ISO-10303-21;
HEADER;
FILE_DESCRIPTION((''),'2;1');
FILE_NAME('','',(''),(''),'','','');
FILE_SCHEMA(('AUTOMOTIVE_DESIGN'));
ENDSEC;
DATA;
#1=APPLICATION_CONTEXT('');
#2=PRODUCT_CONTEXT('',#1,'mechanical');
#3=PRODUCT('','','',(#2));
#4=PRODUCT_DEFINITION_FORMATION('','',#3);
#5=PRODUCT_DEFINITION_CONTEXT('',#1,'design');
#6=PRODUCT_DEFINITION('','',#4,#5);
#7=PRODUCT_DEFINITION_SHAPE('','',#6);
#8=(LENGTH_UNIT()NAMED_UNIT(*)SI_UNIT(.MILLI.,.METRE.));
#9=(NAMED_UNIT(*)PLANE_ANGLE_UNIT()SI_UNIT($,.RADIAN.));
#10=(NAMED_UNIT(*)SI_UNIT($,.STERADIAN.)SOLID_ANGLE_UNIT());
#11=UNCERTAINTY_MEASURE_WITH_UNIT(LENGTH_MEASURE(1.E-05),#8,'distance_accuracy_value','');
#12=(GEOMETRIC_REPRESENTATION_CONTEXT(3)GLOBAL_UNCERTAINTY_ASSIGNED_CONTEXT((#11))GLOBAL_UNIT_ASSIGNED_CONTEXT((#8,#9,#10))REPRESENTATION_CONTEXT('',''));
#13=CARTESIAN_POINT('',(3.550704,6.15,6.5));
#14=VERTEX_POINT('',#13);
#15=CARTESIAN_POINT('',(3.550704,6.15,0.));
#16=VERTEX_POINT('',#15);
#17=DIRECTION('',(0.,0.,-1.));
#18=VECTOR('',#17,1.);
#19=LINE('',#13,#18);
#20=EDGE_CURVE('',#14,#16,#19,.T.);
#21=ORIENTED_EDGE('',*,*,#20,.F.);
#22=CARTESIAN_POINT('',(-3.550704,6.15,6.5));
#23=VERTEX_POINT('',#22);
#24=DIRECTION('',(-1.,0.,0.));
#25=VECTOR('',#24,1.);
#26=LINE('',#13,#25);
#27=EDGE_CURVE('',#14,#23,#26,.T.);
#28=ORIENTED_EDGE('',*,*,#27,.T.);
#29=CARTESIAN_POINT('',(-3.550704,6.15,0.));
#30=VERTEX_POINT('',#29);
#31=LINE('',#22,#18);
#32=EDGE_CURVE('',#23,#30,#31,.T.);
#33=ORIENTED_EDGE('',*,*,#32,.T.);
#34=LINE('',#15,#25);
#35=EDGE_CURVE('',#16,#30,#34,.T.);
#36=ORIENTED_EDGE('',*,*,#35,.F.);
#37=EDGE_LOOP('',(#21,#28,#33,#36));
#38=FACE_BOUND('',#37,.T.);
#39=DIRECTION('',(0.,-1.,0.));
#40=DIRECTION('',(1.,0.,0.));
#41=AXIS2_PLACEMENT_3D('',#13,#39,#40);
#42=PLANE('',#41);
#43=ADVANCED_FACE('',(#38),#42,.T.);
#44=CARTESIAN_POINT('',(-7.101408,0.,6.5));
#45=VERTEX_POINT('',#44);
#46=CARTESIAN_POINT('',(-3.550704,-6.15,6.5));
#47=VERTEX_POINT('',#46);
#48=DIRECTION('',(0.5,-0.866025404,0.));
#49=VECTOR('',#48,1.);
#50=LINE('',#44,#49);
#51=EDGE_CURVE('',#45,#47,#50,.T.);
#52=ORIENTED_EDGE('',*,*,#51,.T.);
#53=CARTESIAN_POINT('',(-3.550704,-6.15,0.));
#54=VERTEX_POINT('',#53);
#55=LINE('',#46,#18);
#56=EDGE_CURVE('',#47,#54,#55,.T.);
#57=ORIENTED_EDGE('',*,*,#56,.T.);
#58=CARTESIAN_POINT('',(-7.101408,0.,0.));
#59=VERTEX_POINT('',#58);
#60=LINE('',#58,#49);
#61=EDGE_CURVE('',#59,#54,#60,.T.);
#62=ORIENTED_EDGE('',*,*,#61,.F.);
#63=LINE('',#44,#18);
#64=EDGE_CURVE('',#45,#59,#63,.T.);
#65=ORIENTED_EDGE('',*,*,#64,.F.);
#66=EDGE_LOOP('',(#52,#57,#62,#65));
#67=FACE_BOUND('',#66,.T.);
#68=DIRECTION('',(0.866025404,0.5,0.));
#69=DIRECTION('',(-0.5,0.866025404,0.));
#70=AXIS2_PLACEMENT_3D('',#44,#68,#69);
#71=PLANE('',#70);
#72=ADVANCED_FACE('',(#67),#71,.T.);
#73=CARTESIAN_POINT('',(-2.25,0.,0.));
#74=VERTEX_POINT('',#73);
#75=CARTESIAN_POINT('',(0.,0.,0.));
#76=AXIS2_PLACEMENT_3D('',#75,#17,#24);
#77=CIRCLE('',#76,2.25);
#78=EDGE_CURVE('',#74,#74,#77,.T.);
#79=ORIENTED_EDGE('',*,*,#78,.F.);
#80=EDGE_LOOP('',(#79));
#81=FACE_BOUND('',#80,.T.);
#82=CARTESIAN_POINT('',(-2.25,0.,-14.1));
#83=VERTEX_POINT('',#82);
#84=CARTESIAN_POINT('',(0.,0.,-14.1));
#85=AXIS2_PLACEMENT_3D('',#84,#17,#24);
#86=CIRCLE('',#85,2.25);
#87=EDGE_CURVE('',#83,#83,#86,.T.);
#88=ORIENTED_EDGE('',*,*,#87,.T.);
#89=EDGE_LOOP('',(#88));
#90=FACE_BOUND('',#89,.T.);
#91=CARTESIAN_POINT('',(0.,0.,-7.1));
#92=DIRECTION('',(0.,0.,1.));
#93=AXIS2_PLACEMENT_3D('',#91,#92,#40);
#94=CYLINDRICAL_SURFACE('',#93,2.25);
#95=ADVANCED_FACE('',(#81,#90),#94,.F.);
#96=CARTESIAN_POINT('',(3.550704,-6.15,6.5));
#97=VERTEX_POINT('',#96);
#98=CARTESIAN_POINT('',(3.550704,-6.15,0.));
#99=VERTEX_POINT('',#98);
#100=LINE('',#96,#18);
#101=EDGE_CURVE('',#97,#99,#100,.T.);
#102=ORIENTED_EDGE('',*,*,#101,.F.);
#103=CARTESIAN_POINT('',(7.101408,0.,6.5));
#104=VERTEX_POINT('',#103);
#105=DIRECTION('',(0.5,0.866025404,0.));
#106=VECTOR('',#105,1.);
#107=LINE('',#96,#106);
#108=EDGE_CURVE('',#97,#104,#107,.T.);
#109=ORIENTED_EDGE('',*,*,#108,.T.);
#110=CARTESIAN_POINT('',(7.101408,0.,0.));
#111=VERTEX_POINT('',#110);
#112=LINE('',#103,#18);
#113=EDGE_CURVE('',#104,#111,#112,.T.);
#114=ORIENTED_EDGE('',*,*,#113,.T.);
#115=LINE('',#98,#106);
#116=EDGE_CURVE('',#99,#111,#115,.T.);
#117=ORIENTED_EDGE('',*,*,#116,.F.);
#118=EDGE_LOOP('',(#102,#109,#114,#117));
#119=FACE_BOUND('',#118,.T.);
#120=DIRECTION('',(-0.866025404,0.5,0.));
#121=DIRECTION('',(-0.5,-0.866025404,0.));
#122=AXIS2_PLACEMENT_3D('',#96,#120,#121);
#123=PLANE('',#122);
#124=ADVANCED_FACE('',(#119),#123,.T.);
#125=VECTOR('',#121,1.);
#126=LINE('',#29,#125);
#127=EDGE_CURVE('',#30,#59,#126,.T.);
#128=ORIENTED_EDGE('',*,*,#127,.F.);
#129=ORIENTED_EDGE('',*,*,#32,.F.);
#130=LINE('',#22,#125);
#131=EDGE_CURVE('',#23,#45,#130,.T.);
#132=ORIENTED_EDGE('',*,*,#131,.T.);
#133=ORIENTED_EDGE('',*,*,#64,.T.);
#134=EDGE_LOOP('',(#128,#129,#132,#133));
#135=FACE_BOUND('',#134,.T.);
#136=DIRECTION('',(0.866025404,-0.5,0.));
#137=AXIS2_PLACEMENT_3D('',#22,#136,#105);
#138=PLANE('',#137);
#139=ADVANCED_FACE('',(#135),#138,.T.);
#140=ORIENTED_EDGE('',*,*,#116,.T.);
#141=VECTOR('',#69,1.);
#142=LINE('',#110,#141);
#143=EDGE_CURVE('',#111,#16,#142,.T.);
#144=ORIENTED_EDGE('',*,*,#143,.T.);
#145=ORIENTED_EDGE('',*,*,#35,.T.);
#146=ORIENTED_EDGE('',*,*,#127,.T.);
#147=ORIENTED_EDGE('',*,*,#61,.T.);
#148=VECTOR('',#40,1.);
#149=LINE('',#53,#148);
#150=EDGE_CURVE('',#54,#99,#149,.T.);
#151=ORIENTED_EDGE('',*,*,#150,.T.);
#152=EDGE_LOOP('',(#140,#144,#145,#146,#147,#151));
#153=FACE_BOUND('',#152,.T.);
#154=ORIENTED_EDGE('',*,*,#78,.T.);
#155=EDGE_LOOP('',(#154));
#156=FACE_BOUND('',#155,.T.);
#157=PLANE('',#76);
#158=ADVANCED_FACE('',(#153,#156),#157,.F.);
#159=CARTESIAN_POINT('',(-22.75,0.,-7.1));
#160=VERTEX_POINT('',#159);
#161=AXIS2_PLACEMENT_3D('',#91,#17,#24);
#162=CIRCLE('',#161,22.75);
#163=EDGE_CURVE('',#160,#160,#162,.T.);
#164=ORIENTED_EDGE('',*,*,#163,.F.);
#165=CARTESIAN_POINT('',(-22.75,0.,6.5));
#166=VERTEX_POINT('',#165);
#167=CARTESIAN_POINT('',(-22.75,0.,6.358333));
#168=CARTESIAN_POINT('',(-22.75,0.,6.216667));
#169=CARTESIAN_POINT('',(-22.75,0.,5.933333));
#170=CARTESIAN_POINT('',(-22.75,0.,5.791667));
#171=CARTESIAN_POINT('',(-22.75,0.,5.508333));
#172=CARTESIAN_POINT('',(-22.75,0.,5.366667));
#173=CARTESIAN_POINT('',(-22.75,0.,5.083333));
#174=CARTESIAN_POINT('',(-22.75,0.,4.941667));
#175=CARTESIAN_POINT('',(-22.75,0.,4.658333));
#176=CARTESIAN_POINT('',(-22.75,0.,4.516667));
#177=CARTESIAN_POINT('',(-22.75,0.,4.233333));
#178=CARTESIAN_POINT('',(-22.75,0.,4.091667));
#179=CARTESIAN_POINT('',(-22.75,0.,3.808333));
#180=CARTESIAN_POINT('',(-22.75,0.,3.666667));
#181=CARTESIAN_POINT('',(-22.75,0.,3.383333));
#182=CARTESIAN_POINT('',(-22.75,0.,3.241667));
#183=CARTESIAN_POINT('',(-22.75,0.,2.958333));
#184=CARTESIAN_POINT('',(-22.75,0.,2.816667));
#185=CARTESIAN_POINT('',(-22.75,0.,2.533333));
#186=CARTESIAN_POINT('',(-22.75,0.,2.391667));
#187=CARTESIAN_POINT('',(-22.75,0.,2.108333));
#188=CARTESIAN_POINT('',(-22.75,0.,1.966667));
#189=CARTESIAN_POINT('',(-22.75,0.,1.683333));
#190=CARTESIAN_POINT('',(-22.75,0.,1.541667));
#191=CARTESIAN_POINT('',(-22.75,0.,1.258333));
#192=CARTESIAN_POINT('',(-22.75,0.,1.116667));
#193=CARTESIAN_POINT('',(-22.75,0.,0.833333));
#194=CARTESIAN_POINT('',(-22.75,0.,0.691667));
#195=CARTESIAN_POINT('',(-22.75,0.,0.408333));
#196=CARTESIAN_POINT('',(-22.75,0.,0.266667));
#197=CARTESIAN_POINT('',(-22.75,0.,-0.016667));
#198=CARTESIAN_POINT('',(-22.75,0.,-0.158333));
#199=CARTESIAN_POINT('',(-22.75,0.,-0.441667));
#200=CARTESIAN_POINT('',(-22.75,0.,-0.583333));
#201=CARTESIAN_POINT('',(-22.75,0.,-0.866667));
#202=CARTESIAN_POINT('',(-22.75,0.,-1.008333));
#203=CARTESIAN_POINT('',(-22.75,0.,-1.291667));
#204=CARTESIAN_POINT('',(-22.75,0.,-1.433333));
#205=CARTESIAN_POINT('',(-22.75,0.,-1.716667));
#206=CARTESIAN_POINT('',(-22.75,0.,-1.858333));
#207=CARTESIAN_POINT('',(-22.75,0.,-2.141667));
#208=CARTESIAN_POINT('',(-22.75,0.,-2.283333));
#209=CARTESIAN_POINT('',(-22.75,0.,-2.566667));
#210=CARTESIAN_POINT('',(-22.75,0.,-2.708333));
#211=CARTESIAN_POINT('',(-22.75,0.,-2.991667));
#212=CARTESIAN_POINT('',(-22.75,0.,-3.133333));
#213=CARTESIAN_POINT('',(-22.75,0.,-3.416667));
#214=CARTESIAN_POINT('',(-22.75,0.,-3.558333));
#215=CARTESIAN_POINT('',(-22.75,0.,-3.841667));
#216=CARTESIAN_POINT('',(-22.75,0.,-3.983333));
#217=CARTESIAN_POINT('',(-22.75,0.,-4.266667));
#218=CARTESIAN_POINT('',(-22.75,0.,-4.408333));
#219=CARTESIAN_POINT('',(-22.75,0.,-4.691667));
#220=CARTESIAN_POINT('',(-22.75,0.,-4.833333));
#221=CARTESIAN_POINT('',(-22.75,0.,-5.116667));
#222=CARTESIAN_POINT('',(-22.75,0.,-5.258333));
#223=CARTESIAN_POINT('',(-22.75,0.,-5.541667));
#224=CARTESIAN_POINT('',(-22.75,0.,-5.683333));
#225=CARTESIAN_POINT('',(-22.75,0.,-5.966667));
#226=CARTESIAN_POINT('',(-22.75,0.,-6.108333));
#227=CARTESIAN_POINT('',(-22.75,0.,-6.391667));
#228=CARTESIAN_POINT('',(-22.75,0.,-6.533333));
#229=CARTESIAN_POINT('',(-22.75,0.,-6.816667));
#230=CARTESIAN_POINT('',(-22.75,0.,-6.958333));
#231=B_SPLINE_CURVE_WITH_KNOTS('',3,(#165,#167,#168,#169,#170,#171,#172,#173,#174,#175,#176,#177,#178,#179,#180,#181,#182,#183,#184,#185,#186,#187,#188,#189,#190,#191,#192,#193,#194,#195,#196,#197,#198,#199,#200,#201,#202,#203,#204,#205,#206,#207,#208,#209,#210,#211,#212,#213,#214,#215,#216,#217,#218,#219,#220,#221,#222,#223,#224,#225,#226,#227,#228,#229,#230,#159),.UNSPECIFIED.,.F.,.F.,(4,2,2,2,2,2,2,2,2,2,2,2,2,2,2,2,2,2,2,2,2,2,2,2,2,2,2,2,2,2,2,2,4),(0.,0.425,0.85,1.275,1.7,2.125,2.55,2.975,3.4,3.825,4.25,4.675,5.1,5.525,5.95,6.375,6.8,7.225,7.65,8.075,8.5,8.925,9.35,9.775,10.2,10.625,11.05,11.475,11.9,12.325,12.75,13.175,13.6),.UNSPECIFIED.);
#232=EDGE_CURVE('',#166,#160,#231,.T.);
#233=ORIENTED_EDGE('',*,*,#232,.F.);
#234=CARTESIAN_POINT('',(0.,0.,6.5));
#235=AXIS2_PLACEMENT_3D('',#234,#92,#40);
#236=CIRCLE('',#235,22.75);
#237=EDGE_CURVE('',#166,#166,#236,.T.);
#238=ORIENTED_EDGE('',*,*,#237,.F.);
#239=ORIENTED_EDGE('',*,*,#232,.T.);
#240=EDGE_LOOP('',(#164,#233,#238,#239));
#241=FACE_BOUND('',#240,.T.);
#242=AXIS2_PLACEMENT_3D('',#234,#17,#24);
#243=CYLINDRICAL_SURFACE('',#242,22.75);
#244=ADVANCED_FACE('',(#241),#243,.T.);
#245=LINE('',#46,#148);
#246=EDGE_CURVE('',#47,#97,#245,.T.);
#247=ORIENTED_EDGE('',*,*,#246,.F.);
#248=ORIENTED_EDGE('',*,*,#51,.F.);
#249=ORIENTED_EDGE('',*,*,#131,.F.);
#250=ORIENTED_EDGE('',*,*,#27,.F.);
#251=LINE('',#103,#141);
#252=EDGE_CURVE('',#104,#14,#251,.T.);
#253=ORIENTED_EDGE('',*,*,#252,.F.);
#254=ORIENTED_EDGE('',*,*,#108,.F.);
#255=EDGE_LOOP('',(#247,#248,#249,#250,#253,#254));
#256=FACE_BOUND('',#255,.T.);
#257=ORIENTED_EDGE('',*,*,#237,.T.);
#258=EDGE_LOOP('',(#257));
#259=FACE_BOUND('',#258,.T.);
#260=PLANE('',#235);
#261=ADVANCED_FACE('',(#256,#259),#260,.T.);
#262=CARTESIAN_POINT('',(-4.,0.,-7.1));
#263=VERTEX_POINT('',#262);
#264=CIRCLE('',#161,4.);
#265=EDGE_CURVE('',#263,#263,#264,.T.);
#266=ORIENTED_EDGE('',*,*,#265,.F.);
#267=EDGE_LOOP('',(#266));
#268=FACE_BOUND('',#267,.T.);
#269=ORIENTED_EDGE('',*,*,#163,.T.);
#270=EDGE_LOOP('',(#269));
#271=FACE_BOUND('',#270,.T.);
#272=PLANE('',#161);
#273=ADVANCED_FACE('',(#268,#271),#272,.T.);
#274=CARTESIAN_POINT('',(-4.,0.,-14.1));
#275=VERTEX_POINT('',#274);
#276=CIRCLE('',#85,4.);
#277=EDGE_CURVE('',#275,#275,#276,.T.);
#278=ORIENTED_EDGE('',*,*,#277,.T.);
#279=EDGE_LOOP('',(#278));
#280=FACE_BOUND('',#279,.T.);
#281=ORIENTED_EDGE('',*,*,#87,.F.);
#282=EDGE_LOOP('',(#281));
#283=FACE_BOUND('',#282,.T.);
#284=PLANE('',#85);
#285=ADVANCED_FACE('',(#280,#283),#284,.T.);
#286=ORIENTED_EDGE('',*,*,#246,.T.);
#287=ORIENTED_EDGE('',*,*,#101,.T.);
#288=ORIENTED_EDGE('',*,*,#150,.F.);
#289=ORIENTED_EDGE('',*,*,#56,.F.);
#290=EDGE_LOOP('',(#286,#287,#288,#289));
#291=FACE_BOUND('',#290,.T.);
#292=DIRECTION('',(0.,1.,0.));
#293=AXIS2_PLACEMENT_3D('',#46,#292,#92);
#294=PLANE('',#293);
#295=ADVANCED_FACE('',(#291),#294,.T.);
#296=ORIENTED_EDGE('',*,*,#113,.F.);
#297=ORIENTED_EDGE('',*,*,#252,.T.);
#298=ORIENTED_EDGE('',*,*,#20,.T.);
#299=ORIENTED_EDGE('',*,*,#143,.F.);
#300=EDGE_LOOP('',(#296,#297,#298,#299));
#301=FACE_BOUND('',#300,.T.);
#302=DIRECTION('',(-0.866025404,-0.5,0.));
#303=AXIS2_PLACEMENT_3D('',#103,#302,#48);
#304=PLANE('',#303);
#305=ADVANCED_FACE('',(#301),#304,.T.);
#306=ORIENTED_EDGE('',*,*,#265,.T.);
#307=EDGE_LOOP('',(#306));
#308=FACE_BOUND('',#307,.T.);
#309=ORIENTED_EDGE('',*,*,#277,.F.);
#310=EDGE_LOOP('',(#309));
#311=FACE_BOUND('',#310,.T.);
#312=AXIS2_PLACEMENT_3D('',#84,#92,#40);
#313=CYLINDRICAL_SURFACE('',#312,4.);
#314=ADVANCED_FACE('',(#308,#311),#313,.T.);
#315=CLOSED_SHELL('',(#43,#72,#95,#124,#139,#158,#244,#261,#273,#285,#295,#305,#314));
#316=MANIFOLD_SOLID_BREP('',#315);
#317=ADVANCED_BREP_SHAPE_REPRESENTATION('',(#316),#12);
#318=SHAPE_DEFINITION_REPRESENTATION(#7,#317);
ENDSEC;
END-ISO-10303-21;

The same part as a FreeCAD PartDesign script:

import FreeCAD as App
import Part
import Sketcher
Q = App.Units.Quantity


def add_polygon(sketch, points):
    """Adds a closed chain of lines whose ends are joined by coincident constraints."""
    first, n = sketch.GeometryCount, len(points)
    for a, b in zip(points, points[1:] + points[:1]):
        sketch.addGeometry(Part.LineSegment(App.Vector(*a, 0), App.Vector(*b, 0)), False)
    for i in range(n):
        sketch.addConstraint(Sketcher.Constraint("Coincident", first + i, 2, first + (i + 1) % n, 1))

doc = App.newDocument("Part")
body = doc.addObject("PartDesign::Body", "Body")

# Sketch on XY plane
sketch1 = doc.addObject("Sketcher::SketchObject", "Sketch")
body.addObject(sketch1)
sketch1.AttachmentSupport = (doc.XY_Plane, [""])
sketch1.MapMode = "FlatFace"
sketch1.addGeometry(Part.Circle(App.Vector(0, 0, 0), App.Vector(0, 0, 1), 23), False)  # 0
add_polygon(sketch1, [(4, 6), (7, 0), (4, -6), (-4, -6), (-7, 0), (-4, 6)])  # lines 1-6
sketch1.addConstraint(Sketcher.Constraint("Horizontal", 3))
sketch1.addConstraint(Sketcher.Constraint("Horizontal", 6))
sketch1.addConstraint(Sketcher.Constraint("Coincident", 0, 3, -1, 1))
sketch1.addConstraint(Sketcher.Constraint("Symmetric", 1, 2, 4, 2, -1, 1))
sketch1.addConstraint(Sketcher.Constraint("Symmetric", 2, 2, 5, 2, -1, 1))
sketch1.addConstraint(Sketcher.Constraint("PointOnObject", 1, 2, -1))
sketch1.addConstraint(Sketcher.Constraint("Parallel", 1, 4))
sketch1.addConstraint(Sketcher.Constraint("Vertical", 3, 2, 5, 2))
sketch1.addConstraint(Sketcher.Constraint("Diameter", 0, 45.5))
sketch1.addConstraint(Sketcher.Constraint("Angle", 1, Q("-60 deg")))
sketch1.addConstraint(Sketcher.Constraint("DistanceY", 3, 2, 5, 2, 12.3))
sketch1.addConstraint(Sketcher.Constraint("DistanceX", 3, 2, 3, 1, 7.101408))
pad1 = doc.addObject("PartDesign::Pad", "Pad")
body.addObject(pad1)
pad1.Profile = sketch1
pad1.Length = 6.5

# Sketch on XY plane
sketch2 = doc.addObject("Sketcher::SketchObject", "Sketch001")
body.addObject(sketch2)
sketch2.AttachmentSupport = (doc.XY_Plane, [""])
sketch2.MapMode = "FlatFace"
sketch2.AttachmentOffset = App.Placement(App.Vector(0, 0, -7.1), App.Rotation())
sketch2.addGeometry(Part.Circle(App.Vector(0, 0, 0), App.Vector(0, 0, 1), 22.8), False)
sketch2.addGeometry(Part.Circle(App.Vector(0, 0, 0), App.Vector(0, 0, 1), 2.2), False)
sketch2.addConstraint(Sketcher.Constraint("Coincident", 0, 3, -1, 1))
sketch2.addConstraint(Sketcher.Constraint("Coincident", 1, 3, -1, 1))
sketch2.addConstraint(Sketcher.Constraint("Diameter", 0, 45.5))
sketch2.addConstraint(Sketcher.Constraint("Diameter", 1, 4.5))
pad2 = doc.addObject("PartDesign::Pad", "Pad001")
body.addObject(pad2)
pad2.Profile = sketch2
pad2.Length = 7.1

# Sketch on XY plane
sketch3 = doc.addObject("Sketcher::SketchObject", "Sketch002")
body.addObject(sketch3)
sketch3.AttachmentSupport = (doc.XY_Plane, [""])
sketch3.MapMode = "FlatFace"
sketch3.AttachmentOffset = App.Placement(App.Vector(0, 0, -14.1), App.Rotation())
sketch3.addGeometry(Part.Circle(App.Vector(0, 0, 0), App.Vector(0, 0, 1), 4), False)
sketch3.addGeometry(Part.Circle(App.Vector(0, 0, 0), App.Vector(0, 0, 1), 2.2), False)
sketch3.addConstraint(Sketcher.Constraint("Coincident", 0, 3, -1, 1))
sketch3.addConstraint(Sketcher.Constraint("Coincident", 1, 3, -1, 1))
sketch3.addConstraint(Sketcher.Constraint("Diameter", 0, 8.0))
sketch3.addConstraint(Sketcher.Constraint("Diameter", 1, 4.5))
pad3 = doc.addObject("PartDesign::Pad", "Pad002")
body.addObject(pad3)
pad3.Profile = sketch3
pad3.Length = 7

doc.recompute()
